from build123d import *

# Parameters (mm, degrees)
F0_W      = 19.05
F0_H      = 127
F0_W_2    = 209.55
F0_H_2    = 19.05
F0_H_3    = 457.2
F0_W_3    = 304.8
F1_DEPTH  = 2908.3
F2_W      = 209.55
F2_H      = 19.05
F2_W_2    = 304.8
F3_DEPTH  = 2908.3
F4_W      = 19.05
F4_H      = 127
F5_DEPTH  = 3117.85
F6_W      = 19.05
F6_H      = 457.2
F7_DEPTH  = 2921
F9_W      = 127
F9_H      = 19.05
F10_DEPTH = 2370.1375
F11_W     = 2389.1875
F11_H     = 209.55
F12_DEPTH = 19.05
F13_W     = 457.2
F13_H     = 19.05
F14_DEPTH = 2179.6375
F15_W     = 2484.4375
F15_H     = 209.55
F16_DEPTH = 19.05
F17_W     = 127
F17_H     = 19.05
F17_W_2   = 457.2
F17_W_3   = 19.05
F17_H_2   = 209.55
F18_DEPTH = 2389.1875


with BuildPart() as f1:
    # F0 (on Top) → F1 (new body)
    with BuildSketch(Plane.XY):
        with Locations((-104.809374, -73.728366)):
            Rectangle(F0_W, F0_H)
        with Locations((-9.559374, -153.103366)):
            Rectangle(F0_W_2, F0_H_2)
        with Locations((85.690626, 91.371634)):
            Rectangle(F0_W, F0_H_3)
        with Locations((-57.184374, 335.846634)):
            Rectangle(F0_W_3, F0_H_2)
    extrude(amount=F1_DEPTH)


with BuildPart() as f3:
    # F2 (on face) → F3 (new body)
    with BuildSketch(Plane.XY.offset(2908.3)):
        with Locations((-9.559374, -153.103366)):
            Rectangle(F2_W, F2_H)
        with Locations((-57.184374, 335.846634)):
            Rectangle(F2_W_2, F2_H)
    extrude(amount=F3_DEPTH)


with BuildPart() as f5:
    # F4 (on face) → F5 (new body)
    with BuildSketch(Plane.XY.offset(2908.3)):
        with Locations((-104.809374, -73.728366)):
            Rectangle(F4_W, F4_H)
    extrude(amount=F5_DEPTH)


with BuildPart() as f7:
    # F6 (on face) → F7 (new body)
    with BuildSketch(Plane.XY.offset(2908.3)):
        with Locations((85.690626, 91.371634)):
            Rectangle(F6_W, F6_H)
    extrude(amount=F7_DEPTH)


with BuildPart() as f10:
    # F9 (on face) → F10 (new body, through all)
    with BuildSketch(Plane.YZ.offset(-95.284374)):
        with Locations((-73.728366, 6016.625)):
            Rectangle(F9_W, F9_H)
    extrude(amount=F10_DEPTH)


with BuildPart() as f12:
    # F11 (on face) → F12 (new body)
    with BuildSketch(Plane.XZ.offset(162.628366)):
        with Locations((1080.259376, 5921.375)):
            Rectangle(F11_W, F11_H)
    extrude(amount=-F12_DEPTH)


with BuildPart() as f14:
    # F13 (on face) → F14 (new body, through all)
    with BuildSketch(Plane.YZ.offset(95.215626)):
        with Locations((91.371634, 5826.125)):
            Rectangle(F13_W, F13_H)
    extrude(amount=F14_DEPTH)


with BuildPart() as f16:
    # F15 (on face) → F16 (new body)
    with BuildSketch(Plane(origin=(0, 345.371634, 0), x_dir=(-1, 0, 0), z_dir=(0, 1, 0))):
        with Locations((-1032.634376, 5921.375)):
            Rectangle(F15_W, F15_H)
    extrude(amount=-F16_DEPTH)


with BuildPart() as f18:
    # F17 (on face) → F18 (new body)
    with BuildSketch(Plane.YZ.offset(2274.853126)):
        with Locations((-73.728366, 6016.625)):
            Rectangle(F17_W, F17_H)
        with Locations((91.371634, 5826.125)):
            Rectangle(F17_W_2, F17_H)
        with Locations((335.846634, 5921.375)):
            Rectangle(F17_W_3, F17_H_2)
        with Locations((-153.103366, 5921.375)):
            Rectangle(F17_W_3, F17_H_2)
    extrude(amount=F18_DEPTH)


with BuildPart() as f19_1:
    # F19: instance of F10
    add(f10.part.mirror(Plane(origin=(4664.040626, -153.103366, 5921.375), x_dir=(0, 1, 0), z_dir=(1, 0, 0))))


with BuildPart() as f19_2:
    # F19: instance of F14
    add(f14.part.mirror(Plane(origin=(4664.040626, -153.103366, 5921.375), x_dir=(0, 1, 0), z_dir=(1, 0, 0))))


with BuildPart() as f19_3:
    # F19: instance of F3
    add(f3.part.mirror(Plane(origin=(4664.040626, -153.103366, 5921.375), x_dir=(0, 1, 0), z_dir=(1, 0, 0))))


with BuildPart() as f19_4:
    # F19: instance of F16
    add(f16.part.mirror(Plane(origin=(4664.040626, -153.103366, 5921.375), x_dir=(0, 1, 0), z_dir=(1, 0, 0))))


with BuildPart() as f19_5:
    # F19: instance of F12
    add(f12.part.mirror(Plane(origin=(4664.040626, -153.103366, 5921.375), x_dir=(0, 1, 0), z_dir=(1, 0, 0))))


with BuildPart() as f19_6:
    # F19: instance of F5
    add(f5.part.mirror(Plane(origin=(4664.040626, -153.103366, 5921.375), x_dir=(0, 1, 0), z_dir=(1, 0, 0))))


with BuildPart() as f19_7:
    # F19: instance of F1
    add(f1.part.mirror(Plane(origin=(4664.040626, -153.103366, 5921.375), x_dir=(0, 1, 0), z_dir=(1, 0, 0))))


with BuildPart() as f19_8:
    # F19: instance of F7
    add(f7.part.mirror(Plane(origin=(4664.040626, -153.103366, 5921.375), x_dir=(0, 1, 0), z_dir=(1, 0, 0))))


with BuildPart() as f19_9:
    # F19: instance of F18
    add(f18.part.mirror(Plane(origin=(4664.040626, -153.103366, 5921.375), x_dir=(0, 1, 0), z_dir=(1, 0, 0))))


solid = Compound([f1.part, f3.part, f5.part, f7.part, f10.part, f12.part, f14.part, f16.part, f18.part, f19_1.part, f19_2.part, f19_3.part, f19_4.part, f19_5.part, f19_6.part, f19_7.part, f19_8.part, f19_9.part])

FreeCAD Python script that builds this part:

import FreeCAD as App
import Part
import Sketcher
from FreeCAD import Vector
Q = App.Units.Quantity


def add_polygon(sketch, points):
    """Adds a closed chain of lines whose ends are joined by coincident constraints."""
    first, n = sketch.GeometryCount, len(points)
    for a, b in zip(points, points[1:] + points[:1]):
        sketch.addGeometry(Part.LineSegment(App.Vector(*a, 0), App.Vector(*b, 0)), False)
    for i in range(n):
        sketch.addConstraint(Sketcher.Constraint("Coincident", first + i, 2, first + (i + 1) % n, 1))

doc = App.newDocument("Part")
body = doc.addObject("PartDesign::Body", "Body")
body.AllowCompound = True

sketch1 = body.newObject("Sketcher::SketchObject", "Sketch")
sketch1.AttachmentSupport = (doc.getObject("XY_Plane"), [""])
sketch1.MapMode = "FlatFace"
add_polygon(sketch1, [(-114, -10), (-114, -137), (-95, -137), (-95, -10)])
add_polygon(sketch1, [(-114, -144), (-114, -163), (95, -163), (95, -144)])
add_polygon(sketch1, [(76, 320), (76, -137), (95, -137), (95, 320)])
add_polygon(sketch1, [(-210, 345), (-210, 326), (95, 326), (95, 345)])
sketch1.addConstraint([
    Sketcher.Constraint("Vertical", 0),
    Sketcher.Constraint("Horizontal", 1),
    Sketcher.Constraint("Vertical", 2),
    Sketcher.Constraint("Horizontal", 3),
    Sketcher.Constraint("Vertical", 4),
    Sketcher.Constraint("Horizontal", 5),
    Sketcher.Constraint("Vertical", 6),
    Sketcher.Constraint("Horizontal", 7),
    Sketcher.Constraint("Vertical", 8),
    Sketcher.Constraint("Horizontal", 9),
    Sketcher.Constraint("Vertical", 10),
    Sketcher.Constraint("Horizontal", 11),
    Sketcher.Constraint("Vertical", 12),
    Sketcher.Constraint("Horizontal", 13),
    Sketcher.Constraint("Vertical", 14),
    Sketcher.Constraint("Horizontal", 15),
    Sketcher.Constraint("Horizontal", 1, 2, 8, 2),
    Sketcher.Constraint("Vertical", 3, 2, 4, 2),
    Sketcher.Constraint("Vertical", 6, 2, 9, 2),
    Sketcher.Constraint("Vertical", 10, 2, 13, 2),
    Sketcher.Constraint("Equal", 3, 9),
    Sketcher.Constraint("Equal", 11, 4),
    Sketcher.Constraint("Equal", 6, 12),
    Sketcher.Constraint("DistanceX", 13, 1, 13, 2, Q("12 in")),
    Sketcher.Constraint("DistanceY", 0, 2, 0, 1, Q("5 in")),
    Sketcher.Constraint("DistanceY", 8, 2, 8, 1, Q("18 in")),
    Sketcher.Constraint("DistanceY", 4, 2, 0, 2, Q("1 in")),
    Sketcher.Constraint("DistanceY", 10, 2, 14, 2, Q("1 in")),
    Sketcher.Constraint("DistanceX", 1, 1, 1, 2, Q("0.75 in")),
    Sketcher.Constraint("DistanceX", 5, 1, 5, 2, Q("8.25 in")),
    Sketcher.Constraint("DistanceX", 0, 2, -1, 1, 114.334374),
    Sketcher.Constraint("DistanceY", 0, 2, -1, 1, 137.228366),
])
pad1 = body.newObject("PartDesign::Pad", "Pad")
pad1.Profile = sketch1
pad1.Length = Q("114.5 in")
body2 = doc.addObject("PartDesign::Body", "Body001")
body2.AllowCompound = True

sketch2 = body2.newObject("Sketcher::SketchObject", "Sketch001")
sketch2.AttachmentSupport = (doc.getObject("XY_Plane001"), [""])
sketch2.MapMode = "FlatFace"
sketch2.AttachmentOffset = App.Placement(Vector(0, 0, 114.5 * 25.4), App.Rotation())
add_polygon(sketch2, [(-114, -144), (-114, -163), (95, -163), (95, -144)])
add_polygon(sketch2, [(-210, 345), (-210, 326), (95, 326), (95, 345)])
sketch2.addConstraint([
    Sketcher.Constraint("Vertical", 0),
    Sketcher.Constraint("Horizontal", 1),
    Sketcher.Constraint("Vertical", 2),
    Sketcher.Constraint("Horizontal", 3),
    Sketcher.Constraint("Vertical", 4),
    Sketcher.Constraint("Horizontal", 5),
    Sketcher.Constraint("Vertical", 6),
    Sketcher.Constraint("Horizontal", 7),
    Sketcher.Constraint("Vertical", 2, 2, 5, 2),
    Sketcher.Constraint("Equal", 2, 4),
    Sketcher.Constraint("DistanceX", 5, 1, 5, 2, Q("12 in")),
    Sketcher.Constraint("DistanceY", 1, 2, 6, 2, Q("20 in")),
    Sketcher.Constraint("DistanceX", 1, 1, 1, 2, Q("8.25 in")),
    Sketcher.Constraint("DistanceY", 0, 2, 0, 1, Q("0.75 in")),
    Sketcher.Constraint("DistanceX", 0, 2, -1, 1, 114.334374),
    Sketcher.Constraint("DistanceY", 0, 2, -1, 1, 162.628366),
])
pad2 = body2.newObject("PartDesign::Pad", "Pad001")
pad2.Profile = sketch2
pad2.Length = Q("114.5 in")
body3 = doc.addObject("PartDesign::Body", "Body002")

sketch3 = body3.newObject("Sketcher::SketchObject", "Sketch002")
sketch3.AttachmentSupport = (doc.getObject("XY_Plane002"), [""])
sketch3.MapMode = "FlatFace"
sketch3.AttachmentOffset = App.Placement(Vector(0, 0, 114.5 * 25.4), App.Rotation())
add_polygon(sketch3, [(-114, -10), (-114, -137), (-95, -137), (-95, -10)])
sketch3.addConstraint([
    Sketcher.Constraint("Vertical", 0),
    Sketcher.Constraint("Horizontal", 1),
    Sketcher.Constraint("Vertical", 2),
    Sketcher.Constraint("Horizontal", 3),
    Sketcher.Constraint("DistanceY", 0, 2, 0, 1, Q("5 in")),
    Sketcher.Constraint("DistanceX", 1, 1, 1, 2, Q("0.75 in")),
    Sketcher.Constraint("DistanceX", 0, 2, -1, 1, 114.334374),
    Sketcher.Constraint("DistanceY", 0, 2, -1, 1, 137.228366),
])
pad3 = body3.newObject("PartDesign::Pad", "Pad002")
pad3.Profile = sketch3
pad3.Length = Q("122.75 in")
body4 = doc.addObject("PartDesign::Body", "Body003")

sketch4 = body4.newObject("Sketcher::SketchObject", "Sketch003")
sketch4.AttachmentSupport = (doc.getObject("XY_Plane003"), [""])
sketch4.MapMode = "FlatFace"
sketch4.AttachmentOffset = App.Placement(Vector(0, 0, 114.5 * 25.4), App.Rotation())
add_polygon(sketch4, [(76, 320), (76, -137), (95, -137), (95, 320)])
sketch4.addConstraint([
    Sketcher.Constraint("Vertical", 0),
    Sketcher.Constraint("Horizontal", 1),
    Sketcher.Constraint("Vertical", 2),
    Sketcher.Constraint("Horizontal", 3),
    Sketcher.Constraint("DistanceY", 0, 2, 0, 1, Q("18 in")),
    Sketcher.Constraint("DistanceX", 1, 1, 1, 2, Q("0.75 in")),
    Sketcher.Constraint("DistanceX", -1, 1, 0, 2, 76.165626),
    Sketcher.Constraint("DistanceY", 0, 2, -1, 1, 137.228366),
])
pad4 = body4.newObject("PartDesign::Pad", "Pad003")
pad4.Profile = sketch4
pad4.Length = Q("115 in")
body5 = doc.addObject("PartDesign::Body", "Body004")

sketch5 = body5.newObject("Sketcher::SketchObject", "Sketch004")
sketch5.AttachmentSupport = (doc.getObject("YZ_Plane004"), [""])
sketch5.MapMode = "FlatFace"
sketch5.AttachmentOffset = App.Placement(Vector(0, 0, -95.284374), App.Rotation())
add_polygon(sketch5, [(-137, 6026), (-137, 6007), (-10, 6007), (-10, 6026)])
sketch5.addConstraint([
    Sketcher.Constraint("Vertical", 0),
    Sketcher.Constraint("Horizontal", 1),
    Sketcher.Constraint("Vertical", 2),
    Sketcher.Constraint("Horizontal", 3),
    Sketcher.Constraint("DistanceX", 1, 1, 1, 2, Q("5 in")),
    Sketcher.Constraint("DistanceY", 0, 2, 0, 1, Q("0.75 in")),
    Sketcher.Constraint("DistanceY", -1, 1, 0, 2, Q("236.5 in")),
    Sketcher.Constraint("DistanceX", 0, 2, -1, 1, 137.228366),
])
pad5 = body5.newObject("PartDesign::Pad", "Pad004")
pad5.Profile = sketch5
pad5.Length = Q("93.3125 in")
body6 = doc.addObject("PartDesign::Body", "Body005")

sketch6 = body6.newObject("Sketcher::SketchObject", "Sketch005")
sketch6.AttachmentSupport = (doc.getObject("XZ_Plane005"), [""])
sketch6.MapMode = "FlatFace"
sketch6.AttachmentOffset = App.Placement(Vector(0, 0, 162.628366), App.Rotation())
add_polygon(sketch6, [(-114, 6026), (-114, 5817), (2275, 5817), (2275, 6026)])
sketch6.addConstraint([
    Sketcher.Constraint("Vertical", 0),
    Sketcher.Constraint("Horizontal", 1),
    Sketcher.Constraint("Vertical", 2),
    Sketcher.Constraint("Horizontal", 3),
    Sketcher.Constraint("DistanceY", -1, 1, 0, 2, Q("229 in")),
    Sketcher.Constraint("DistanceY", 0, 2, 0, 1, Q("8.25 in")),
    Sketcher.Constraint("DistanceX", 1, 1, 1, 2, Q("94.0625 in")),
    Sketcher.Constraint("DistanceX", 0, 2, -1, 1, 114.334374),
])
pad6 = body6.newObject("PartDesign::Pad", "Pad005")
pad6.Profile = sketch6
pad6.Length = Q("0.75 in")
pad6.Reversed = True
body7 = doc.addObject("PartDesign::Body", "Body006")

sketch7 = body7.newObject("Sketcher::SketchObject", "Sketch006")
sketch7.AttachmentSupport = (doc.getObject("YZ_Plane006"), [""])
sketch7.MapMode = "FlatFace"
sketch7.AttachmentOffset = App.Placement(Vector(0, 0, 95.215626), App.Rotation())
add_polygon(sketch7, [(-137, 5836), (-137, 5817), (320, 5817), (320, 5836)])
sketch7.addConstraint([
    Sketcher.Constraint("Vertical", 0),
    Sketcher.Constraint("Horizontal", 1),
    Sketcher.Constraint("Vertical", 2),
    Sketcher.Constraint("Horizontal", 3),
    Sketcher.Constraint("DistanceX", 1, 1, 1, 2, Q("18 in")),
    Sketcher.Constraint("DistanceY", -1, 1, 0, 2, Q("229 in")),
    Sketcher.Constraint("DistanceY", 0, 2, 0, 1, Q("0.75 in")),
    Sketcher.Constraint("DistanceX", 0, 2, -1, 1, 137.228366),
])
pad7 = body7.newObject("PartDesign::Pad", "Pad006")
pad7.Profile = sketch7
pad7.Length = Q("85.8125 in")
body8 = doc.addObject("PartDesign::Body", "Body007")

sketch8 = body8.newObject("Sketcher::SketchObject", "Sketch007")
sketch8.AttachmentSupport = (doc.getObject("XZ_Plane007"), [""])
sketch8.MapMode = "FlatFace"
sketch8.AttachmentOffset = App.Placement(Vector(0, 0, -345.371634), App.Rotation())
add_polygon(sketch8, [(2275, 6026), (2275, 5817), (-210, 5817), (-210, 6026)])
sketch8.addConstraint([
    Sketcher.Constraint("Vertical", 0),
    Sketcher.Constraint("Horizontal", 1),
    Sketcher.Constraint("Vertical", 2),
    Sketcher.Constraint("Horizontal", 3),
    Sketcher.Constraint("DistanceY", -1, 1, 0, 2, Q("229 in")),
    Sketcher.Constraint("DistanceY", 0, 2, 0, 1, Q("8.25 in")),
    Sketcher.Constraint("DistanceX", 1, 2, 1, 1, Q("97.8125 in")),
    Sketcher.Constraint("DistanceX", -1, 1, 0, 2, 2274.853126),
])
pad8 = body8.newObject("PartDesign::Pad", "Pad007")
pad8.Profile = sketch8
pad8.Length = Q("0.75 in")
body9 = doc.addObject("PartDesign::Body", "Body008")
body9.AllowCompound = True

sketch9 = body9.newObject("Sketcher::SketchObject", "Sketch008")
sketch9.AttachmentSupport = (doc.getObject("YZ_Plane008"), [""])
sketch9.MapMode = "FlatFace"
sketch9.AttachmentOffset = App.Placement(Vector(0, 0, 2274.853126), App.Rotation())
add_polygon(sketch9, [(-137, 6026), (-137, 6007), (-10, 6007), (-10, 6026)])
add_polygon(sketch9, [(-137, 5836), (-137, 5817), (320, 5817), (320, 5836)])
add_polygon(sketch9, [(326, 6026), (326, 5817), (345, 5817), (345, 6026)])
add_polygon(sketch9, [(-163, 6026), (-163, 5817), (-144, 5817), (-144, 6026)])
sketch9.addConstraint([
    Sketcher.Constraint("Vertical", 0),
    Sketcher.Constraint("Horizontal", 1),
    Sketcher.Constraint("Vertical", 2),
    Sketcher.Constraint("Horizontal", 3),
    Sketcher.Constraint("Vertical", 4),
    Sketcher.Constraint("Horizontal", 5),
    Sketcher.Constraint("Vertical", 6),
    Sketcher.Constraint("Horizontal", 7),
    Sketcher.Constraint("Vertical", 8),
    Sketcher.Constraint("Horizontal", 9),
    Sketcher.Constraint("Vertical", 10),
    Sketcher.Constraint("Horizontal", 11),
    Sketcher.Constraint("Vertical", 12),
    Sketcher.Constraint("Horizontal", 13),
    Sketcher.Constraint("Vertical", 14),
    Sketcher.Constraint("Horizontal", 15),
    Sketcher.Constraint("Horizontal", 5, 2, 8, 2),
    Sketcher.Constraint("Horizontal", 3, 2, 10, 2),
    Sketcher.Constraint("Horizontal", 9, 2, 12, 2),
    Sketcher.Constraint("Horizontal", 11, 2, 14, 2),
    Sketcher.Constraint("Vertical", 3, 2, 4, 2),
    Sketcher.Constraint("Equal", 11, 13),
    Sketcher.Constraint("Equal", 15, 0),
    Sketcher.Constraint("Equal", 2, 4),
    Sketcher.Constraint("DistanceX", 1, 1, 1, 2, Q("5 in")),
    Sketcher.Constraint("DistanceX", 5, 1, 5, 2, Q("18 in")),
    Sketcher.Constraint("DistanceY", -1, 1, 4, 2, Q("229 in")),
    Sketcher.Constraint("DistanceX", 5, 2, 9, 2, Q("1 in")),
    Sketcher.Constraint("DistanceX", 12, 2, 4, 2, Q("1 in")),
    Sketcher.Constraint("DistanceX", 9, 1, 9, 2, Q("0.75 in")),
    Sketcher.Constraint("DistanceY", 8, 2, 8, 1, Q("8.25 in")),
    Sketcher.Constraint("DistanceX", 0, 2, -1, 1, 137.228366),
])
pad9 = body9.newObject("PartDesign::Pad", "Pad008")
pad9.Profile = sketch9
pad9.Length = Q("94.0625 in")
body10 = doc.addObject("PartDesign::Body", "Body009")
doc.recompute()

mirroring = doc.addObject("Part::Mirroring", "Mirroring")
mirroring.Source = body5
mirroring.Base = Vector(4664.040626, -153.103366, 5921.375)
mirroring.Normal = Vector(1, 0, 0)
body10.BaseFeature = mirroring
doc.recompute()
body11 = doc.addObject("PartDesign::Body", "Body010")
doc.recompute()

mirroring2 = doc.addObject("Part::Mirroring", "Mirroring001")
mirroring2.Source = body7
mirroring2.Base = Vector(4664.040626, -153.103366, 5921.375)
mirroring2.Normal = Vector(1, 0, 0)
body11.BaseFeature = mirroring2
doc.recompute()
body12 = doc.addObject("PartDesign::Body", "Body011")
body12.AllowCompound = True
doc.recompute()

mirroring3 = doc.addObject("Part::Mirroring", "Mirroring002")
mirroring3.Source = body2
mirroring3.Base = Vector(4664.040626, -153.103366, 5921.375)
mirroring3.Normal = Vector(1, 0, 0)
body12.BaseFeature = mirroring3
doc.recompute()
body13 = doc.addObject("PartDesign::Body", "Body012")
doc.recompute()

mirroring4 = doc.addObject("Part::Mirroring", "Mirroring003")
mirroring4.Source = body8
mirroring4.Base = Vector(4664.040626, -153.103366, 5921.375)
mirroring4.Normal = Vector(1, 0, 0)
body13.BaseFeature = mirroring4
doc.recompute()
body14 = doc.addObject("PartDesign::Body", "Body013")
doc.recompute()

mirroring5 = doc.addObject("Part::Mirroring", "Mirroring004")
mirroring5.Source = body6
mirroring5.Base = Vector(4664.040626, -153.103366, 5921.375)
mirroring5.Normal = Vector(1, 0, 0)
body14.BaseFeature = mirroring5
doc.recompute()
body15 = doc.addObject("PartDesign::Body", "Body014")
doc.recompute()

mirroring6 = doc.addObject("Part::Mirroring", "Mirroring005")
mirroring6.Source = body3
mirroring6.Base = Vector(4664.040626, -153.103366, 5921.375)
mirroring6.Normal = Vector(1, 0, 0)
body15.BaseFeature = mirroring6
doc.recompute()
body16 = doc.addObject("PartDesign::Body", "Body015")
body16.AllowCompound = True
doc.recompute()

mirroring7 = doc.addObject("Part::Mirroring", "Mirroring006")
mirroring7.Source = body
mirroring7.Base = Vector(4664.040626, -153.103366, 5921.375)
mirroring7.Normal = Vector(1, 0, 0)
body16.BaseFeature = mirroring7
doc.recompute()
body17 = doc.addObject("PartDesign::Body", "Body016")
doc.recompute()

mirroring8 = doc.addObject("Part::Mirroring", "Mirroring007")
mirroring8.Source = body4
mirroring8.Base = Vector(4664.040626, -153.103366, 5921.375)
mirroring8.Normal = Vector(1, 0, 0)
body17.BaseFeature = mirroring8
doc.recompute()
body18 = doc.addObject("PartDesign::Body", "Body017")
body18.AllowCompound = True
doc.recompute()

mirroring9 = doc.addObject("Part::Mirroring", "Mirroring008")
mirroring9.Source = body9
mirroring9.Base = Vector(4664.040626, -153.103366, 5921.375)
mirroring9.Normal = Vector(1, 0, 0)
body18.BaseFeature = mirroring9
doc.recompute()

doc.recompute()
